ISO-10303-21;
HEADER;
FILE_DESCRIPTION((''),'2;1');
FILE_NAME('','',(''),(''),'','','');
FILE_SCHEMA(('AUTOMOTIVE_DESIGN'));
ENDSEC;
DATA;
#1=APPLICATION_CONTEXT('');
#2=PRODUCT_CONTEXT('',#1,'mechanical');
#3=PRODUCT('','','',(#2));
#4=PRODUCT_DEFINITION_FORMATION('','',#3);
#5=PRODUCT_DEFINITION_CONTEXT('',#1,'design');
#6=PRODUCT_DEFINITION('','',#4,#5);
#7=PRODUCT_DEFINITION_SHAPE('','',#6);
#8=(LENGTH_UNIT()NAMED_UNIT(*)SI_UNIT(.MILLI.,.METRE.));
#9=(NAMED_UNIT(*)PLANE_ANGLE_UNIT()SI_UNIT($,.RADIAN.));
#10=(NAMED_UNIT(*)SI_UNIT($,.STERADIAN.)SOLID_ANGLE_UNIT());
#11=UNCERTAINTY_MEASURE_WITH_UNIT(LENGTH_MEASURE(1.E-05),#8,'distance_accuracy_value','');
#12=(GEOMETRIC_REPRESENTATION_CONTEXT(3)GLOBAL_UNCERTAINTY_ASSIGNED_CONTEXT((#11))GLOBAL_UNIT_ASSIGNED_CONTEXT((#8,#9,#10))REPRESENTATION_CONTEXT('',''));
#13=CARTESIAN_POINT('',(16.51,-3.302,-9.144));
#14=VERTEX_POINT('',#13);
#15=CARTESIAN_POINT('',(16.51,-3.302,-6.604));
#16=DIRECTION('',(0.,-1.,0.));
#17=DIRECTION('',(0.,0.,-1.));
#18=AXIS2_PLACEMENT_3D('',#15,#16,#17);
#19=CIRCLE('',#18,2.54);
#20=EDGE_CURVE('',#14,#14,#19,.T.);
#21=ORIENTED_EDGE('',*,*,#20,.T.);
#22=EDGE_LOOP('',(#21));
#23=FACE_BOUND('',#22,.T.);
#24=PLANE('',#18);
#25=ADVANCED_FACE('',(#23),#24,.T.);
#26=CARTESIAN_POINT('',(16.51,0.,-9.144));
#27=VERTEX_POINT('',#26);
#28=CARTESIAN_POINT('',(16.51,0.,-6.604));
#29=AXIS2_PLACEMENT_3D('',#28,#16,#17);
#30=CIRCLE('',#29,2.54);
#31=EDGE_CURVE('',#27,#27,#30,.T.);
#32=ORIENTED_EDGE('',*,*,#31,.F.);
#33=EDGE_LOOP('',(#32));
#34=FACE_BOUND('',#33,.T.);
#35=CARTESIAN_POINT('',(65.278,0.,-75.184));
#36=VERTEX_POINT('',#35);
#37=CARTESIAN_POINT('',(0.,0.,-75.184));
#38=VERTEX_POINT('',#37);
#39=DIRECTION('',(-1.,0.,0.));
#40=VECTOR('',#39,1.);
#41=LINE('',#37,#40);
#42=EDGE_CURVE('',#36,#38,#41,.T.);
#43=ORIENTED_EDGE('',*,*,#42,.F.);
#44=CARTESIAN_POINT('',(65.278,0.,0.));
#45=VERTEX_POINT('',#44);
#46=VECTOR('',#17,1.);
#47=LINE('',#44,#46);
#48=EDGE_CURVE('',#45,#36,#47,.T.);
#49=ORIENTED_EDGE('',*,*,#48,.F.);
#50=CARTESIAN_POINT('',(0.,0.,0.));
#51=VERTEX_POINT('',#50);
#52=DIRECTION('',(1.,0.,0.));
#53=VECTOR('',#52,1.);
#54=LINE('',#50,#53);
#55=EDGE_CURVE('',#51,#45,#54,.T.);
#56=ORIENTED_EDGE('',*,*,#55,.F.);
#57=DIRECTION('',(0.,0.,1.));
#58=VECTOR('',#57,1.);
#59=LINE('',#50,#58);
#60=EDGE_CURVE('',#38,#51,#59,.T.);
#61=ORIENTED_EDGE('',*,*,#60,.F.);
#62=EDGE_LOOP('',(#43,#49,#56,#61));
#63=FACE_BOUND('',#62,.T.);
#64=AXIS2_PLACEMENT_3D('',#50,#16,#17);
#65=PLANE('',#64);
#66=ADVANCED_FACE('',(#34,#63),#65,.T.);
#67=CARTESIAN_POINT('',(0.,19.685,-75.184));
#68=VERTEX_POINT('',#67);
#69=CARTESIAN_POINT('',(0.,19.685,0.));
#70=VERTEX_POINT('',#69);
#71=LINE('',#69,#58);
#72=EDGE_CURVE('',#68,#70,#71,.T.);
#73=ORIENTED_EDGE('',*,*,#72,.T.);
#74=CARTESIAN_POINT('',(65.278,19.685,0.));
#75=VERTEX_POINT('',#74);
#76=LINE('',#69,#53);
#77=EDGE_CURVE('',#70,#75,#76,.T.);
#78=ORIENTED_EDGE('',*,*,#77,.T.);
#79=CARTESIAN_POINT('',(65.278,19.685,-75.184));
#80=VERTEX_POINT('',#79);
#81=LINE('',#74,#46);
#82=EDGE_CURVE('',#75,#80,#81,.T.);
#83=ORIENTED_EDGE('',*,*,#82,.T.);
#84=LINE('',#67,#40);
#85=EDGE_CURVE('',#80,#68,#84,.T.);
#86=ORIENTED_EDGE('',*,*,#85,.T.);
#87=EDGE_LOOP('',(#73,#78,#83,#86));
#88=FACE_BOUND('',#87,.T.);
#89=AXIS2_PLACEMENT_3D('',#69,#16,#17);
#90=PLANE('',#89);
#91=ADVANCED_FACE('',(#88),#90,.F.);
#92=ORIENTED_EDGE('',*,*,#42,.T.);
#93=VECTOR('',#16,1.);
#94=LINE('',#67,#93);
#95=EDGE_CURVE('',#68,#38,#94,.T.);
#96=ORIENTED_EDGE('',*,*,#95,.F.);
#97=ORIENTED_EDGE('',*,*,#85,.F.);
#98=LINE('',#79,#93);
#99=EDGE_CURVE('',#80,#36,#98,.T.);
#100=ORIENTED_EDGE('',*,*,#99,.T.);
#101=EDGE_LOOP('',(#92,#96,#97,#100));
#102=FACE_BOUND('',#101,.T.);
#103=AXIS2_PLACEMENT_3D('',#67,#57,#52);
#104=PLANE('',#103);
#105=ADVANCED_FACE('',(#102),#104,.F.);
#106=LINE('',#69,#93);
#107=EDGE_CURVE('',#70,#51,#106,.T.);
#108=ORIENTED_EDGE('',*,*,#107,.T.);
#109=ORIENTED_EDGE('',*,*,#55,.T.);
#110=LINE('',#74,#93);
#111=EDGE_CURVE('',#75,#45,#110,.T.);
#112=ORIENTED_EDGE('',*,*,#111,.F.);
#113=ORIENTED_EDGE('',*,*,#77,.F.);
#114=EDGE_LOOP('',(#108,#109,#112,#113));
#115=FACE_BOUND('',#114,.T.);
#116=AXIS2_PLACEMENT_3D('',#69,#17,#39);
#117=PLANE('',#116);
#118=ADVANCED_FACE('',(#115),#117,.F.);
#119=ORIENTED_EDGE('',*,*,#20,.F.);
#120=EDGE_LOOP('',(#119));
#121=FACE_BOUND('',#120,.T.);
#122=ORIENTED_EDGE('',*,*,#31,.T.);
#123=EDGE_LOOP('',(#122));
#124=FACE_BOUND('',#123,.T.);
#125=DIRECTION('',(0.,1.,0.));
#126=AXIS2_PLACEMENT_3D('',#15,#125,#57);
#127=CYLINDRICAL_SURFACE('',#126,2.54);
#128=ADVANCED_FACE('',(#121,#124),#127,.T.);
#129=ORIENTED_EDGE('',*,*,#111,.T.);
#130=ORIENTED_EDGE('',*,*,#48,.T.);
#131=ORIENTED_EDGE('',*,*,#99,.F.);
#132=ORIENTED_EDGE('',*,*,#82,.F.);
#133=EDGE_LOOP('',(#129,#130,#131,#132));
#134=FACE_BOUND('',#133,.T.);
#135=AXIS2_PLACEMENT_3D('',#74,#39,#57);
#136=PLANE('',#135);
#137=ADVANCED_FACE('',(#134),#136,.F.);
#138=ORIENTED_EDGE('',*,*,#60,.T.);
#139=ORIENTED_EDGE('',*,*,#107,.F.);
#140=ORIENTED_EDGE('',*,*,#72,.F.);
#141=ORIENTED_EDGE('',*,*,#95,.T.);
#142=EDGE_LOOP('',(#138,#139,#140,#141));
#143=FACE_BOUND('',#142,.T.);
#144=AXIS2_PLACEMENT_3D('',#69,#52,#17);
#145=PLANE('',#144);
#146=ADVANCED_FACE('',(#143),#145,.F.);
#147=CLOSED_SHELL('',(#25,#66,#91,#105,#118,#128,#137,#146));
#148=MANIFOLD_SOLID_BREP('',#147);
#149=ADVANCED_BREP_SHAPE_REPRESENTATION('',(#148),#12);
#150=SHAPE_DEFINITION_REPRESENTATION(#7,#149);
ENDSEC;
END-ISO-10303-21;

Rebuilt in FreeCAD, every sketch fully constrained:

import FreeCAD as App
import Part
import Sketcher
from FreeCAD import Vector
Q = App.Units.Quantity


def add_polygon(sketch, points):
    """Adds a closed chain of lines whose ends are joined by coincident constraints."""
    first, n = sketch.GeometryCount, len(points)
    for a, b in zip(points, points[1:] + points[:1]):
        sketch.addGeometry(Part.LineSegment(App.Vector(*a, 0), App.Vector(*b, 0)), False)
    for i in range(n):
        sketch.addConstraint(Sketcher.Constraint("Coincident", first + i, 2, first + (i + 1) % n, 1))

doc = App.newDocument("Part")
params = doc.addObject("Spreadsheet::Sheet", "Params")
for row, (alias, value) in enumerate([
    ("sketch1_width", "2.57 in"),
    ("sketch1_height", "2.96 in"),
    ("pad1_length", "0.775 in"),
    ("sketch2_diameter", "0.2 in"),
    ("pad2_length", "0.13 in"),
], start=1):
    params.set(f"A{row}", alias)
    params.set(f"B{row}", "=" + value)
    params.setAlias(f"B{row}", alias)

body = doc.addObject("PartDesign::Body", "Body")

sketch1 = doc.addObject("Sketcher::SketchObject", "Sketch")
body.addObject(sketch1)
sketch1.AttachmentSupport = (doc.XZ_Plane, [""])
sketch1.MapMode = "FlatFace"
add_polygon(sketch1, [(0, -75), (0, 0), (65, 0), (65, -75)])
sketch1.addConstraint([
    Sketcher.Constraint("Vertical", 0),
    Sketcher.Constraint("Horizontal", 1),
    Sketcher.Constraint("Vertical", 2),
    Sketcher.Constraint("Horizontal", 3),
    Sketcher.Constraint("Coincident", 0, 2, -1, 1),
    Sketcher.Constraint("DistanceX", 1, 1, 1, 2, Q("2.57 in")),
    Sketcher.Constraint("DistanceY", 0, 1, 0, 2, Q("2.96 in")),
])
sketch1.setExpression("Constraints[9]", "Params.sketch1_width")
sketch1.setExpression("Constraints[10]", "Params.sketch1_height")
pad1 = doc.addObject("PartDesign::Pad", "Pad")
body.addObject(pad1)
pad1.Profile = sketch1
pad1.setExpression("Length", "Params.pad1_length")
pad1.Reversed = True

sketch2 = doc.addObject("Sketcher::SketchObject", "Sketch001")
body.addObject(sketch2)
sketch2.AttachmentSupport = (doc.XZ_Plane, [""])
sketch2.MapMode = "FlatFace"
sketch2.addGeometry(Part.Circle(Vector(16.5, -6.6, 0), Vector(0, 0, 1), 2.5), False)
sketch2.addConstraint([
    Sketcher.Constraint("Diameter", 0, Q("0.2 in")),
    Sketcher.Constraint("DistanceX", -1, 1, 0, 3, Q("0.65 in")),
    Sketcher.Constraint("DistanceY", 0, 3, -1, 1, Q("0.26 in")),
])
sketch2.setExpression("Constraints[0]", "Params.sketch2_diameter")
pad2 = doc.addObject("PartDesign::Pad", "Pad001")
body.addObject(pad2)
pad2.Profile = sketch2
pad2.setExpression("Length", "Params.pad2_length")

doc.recompute()
